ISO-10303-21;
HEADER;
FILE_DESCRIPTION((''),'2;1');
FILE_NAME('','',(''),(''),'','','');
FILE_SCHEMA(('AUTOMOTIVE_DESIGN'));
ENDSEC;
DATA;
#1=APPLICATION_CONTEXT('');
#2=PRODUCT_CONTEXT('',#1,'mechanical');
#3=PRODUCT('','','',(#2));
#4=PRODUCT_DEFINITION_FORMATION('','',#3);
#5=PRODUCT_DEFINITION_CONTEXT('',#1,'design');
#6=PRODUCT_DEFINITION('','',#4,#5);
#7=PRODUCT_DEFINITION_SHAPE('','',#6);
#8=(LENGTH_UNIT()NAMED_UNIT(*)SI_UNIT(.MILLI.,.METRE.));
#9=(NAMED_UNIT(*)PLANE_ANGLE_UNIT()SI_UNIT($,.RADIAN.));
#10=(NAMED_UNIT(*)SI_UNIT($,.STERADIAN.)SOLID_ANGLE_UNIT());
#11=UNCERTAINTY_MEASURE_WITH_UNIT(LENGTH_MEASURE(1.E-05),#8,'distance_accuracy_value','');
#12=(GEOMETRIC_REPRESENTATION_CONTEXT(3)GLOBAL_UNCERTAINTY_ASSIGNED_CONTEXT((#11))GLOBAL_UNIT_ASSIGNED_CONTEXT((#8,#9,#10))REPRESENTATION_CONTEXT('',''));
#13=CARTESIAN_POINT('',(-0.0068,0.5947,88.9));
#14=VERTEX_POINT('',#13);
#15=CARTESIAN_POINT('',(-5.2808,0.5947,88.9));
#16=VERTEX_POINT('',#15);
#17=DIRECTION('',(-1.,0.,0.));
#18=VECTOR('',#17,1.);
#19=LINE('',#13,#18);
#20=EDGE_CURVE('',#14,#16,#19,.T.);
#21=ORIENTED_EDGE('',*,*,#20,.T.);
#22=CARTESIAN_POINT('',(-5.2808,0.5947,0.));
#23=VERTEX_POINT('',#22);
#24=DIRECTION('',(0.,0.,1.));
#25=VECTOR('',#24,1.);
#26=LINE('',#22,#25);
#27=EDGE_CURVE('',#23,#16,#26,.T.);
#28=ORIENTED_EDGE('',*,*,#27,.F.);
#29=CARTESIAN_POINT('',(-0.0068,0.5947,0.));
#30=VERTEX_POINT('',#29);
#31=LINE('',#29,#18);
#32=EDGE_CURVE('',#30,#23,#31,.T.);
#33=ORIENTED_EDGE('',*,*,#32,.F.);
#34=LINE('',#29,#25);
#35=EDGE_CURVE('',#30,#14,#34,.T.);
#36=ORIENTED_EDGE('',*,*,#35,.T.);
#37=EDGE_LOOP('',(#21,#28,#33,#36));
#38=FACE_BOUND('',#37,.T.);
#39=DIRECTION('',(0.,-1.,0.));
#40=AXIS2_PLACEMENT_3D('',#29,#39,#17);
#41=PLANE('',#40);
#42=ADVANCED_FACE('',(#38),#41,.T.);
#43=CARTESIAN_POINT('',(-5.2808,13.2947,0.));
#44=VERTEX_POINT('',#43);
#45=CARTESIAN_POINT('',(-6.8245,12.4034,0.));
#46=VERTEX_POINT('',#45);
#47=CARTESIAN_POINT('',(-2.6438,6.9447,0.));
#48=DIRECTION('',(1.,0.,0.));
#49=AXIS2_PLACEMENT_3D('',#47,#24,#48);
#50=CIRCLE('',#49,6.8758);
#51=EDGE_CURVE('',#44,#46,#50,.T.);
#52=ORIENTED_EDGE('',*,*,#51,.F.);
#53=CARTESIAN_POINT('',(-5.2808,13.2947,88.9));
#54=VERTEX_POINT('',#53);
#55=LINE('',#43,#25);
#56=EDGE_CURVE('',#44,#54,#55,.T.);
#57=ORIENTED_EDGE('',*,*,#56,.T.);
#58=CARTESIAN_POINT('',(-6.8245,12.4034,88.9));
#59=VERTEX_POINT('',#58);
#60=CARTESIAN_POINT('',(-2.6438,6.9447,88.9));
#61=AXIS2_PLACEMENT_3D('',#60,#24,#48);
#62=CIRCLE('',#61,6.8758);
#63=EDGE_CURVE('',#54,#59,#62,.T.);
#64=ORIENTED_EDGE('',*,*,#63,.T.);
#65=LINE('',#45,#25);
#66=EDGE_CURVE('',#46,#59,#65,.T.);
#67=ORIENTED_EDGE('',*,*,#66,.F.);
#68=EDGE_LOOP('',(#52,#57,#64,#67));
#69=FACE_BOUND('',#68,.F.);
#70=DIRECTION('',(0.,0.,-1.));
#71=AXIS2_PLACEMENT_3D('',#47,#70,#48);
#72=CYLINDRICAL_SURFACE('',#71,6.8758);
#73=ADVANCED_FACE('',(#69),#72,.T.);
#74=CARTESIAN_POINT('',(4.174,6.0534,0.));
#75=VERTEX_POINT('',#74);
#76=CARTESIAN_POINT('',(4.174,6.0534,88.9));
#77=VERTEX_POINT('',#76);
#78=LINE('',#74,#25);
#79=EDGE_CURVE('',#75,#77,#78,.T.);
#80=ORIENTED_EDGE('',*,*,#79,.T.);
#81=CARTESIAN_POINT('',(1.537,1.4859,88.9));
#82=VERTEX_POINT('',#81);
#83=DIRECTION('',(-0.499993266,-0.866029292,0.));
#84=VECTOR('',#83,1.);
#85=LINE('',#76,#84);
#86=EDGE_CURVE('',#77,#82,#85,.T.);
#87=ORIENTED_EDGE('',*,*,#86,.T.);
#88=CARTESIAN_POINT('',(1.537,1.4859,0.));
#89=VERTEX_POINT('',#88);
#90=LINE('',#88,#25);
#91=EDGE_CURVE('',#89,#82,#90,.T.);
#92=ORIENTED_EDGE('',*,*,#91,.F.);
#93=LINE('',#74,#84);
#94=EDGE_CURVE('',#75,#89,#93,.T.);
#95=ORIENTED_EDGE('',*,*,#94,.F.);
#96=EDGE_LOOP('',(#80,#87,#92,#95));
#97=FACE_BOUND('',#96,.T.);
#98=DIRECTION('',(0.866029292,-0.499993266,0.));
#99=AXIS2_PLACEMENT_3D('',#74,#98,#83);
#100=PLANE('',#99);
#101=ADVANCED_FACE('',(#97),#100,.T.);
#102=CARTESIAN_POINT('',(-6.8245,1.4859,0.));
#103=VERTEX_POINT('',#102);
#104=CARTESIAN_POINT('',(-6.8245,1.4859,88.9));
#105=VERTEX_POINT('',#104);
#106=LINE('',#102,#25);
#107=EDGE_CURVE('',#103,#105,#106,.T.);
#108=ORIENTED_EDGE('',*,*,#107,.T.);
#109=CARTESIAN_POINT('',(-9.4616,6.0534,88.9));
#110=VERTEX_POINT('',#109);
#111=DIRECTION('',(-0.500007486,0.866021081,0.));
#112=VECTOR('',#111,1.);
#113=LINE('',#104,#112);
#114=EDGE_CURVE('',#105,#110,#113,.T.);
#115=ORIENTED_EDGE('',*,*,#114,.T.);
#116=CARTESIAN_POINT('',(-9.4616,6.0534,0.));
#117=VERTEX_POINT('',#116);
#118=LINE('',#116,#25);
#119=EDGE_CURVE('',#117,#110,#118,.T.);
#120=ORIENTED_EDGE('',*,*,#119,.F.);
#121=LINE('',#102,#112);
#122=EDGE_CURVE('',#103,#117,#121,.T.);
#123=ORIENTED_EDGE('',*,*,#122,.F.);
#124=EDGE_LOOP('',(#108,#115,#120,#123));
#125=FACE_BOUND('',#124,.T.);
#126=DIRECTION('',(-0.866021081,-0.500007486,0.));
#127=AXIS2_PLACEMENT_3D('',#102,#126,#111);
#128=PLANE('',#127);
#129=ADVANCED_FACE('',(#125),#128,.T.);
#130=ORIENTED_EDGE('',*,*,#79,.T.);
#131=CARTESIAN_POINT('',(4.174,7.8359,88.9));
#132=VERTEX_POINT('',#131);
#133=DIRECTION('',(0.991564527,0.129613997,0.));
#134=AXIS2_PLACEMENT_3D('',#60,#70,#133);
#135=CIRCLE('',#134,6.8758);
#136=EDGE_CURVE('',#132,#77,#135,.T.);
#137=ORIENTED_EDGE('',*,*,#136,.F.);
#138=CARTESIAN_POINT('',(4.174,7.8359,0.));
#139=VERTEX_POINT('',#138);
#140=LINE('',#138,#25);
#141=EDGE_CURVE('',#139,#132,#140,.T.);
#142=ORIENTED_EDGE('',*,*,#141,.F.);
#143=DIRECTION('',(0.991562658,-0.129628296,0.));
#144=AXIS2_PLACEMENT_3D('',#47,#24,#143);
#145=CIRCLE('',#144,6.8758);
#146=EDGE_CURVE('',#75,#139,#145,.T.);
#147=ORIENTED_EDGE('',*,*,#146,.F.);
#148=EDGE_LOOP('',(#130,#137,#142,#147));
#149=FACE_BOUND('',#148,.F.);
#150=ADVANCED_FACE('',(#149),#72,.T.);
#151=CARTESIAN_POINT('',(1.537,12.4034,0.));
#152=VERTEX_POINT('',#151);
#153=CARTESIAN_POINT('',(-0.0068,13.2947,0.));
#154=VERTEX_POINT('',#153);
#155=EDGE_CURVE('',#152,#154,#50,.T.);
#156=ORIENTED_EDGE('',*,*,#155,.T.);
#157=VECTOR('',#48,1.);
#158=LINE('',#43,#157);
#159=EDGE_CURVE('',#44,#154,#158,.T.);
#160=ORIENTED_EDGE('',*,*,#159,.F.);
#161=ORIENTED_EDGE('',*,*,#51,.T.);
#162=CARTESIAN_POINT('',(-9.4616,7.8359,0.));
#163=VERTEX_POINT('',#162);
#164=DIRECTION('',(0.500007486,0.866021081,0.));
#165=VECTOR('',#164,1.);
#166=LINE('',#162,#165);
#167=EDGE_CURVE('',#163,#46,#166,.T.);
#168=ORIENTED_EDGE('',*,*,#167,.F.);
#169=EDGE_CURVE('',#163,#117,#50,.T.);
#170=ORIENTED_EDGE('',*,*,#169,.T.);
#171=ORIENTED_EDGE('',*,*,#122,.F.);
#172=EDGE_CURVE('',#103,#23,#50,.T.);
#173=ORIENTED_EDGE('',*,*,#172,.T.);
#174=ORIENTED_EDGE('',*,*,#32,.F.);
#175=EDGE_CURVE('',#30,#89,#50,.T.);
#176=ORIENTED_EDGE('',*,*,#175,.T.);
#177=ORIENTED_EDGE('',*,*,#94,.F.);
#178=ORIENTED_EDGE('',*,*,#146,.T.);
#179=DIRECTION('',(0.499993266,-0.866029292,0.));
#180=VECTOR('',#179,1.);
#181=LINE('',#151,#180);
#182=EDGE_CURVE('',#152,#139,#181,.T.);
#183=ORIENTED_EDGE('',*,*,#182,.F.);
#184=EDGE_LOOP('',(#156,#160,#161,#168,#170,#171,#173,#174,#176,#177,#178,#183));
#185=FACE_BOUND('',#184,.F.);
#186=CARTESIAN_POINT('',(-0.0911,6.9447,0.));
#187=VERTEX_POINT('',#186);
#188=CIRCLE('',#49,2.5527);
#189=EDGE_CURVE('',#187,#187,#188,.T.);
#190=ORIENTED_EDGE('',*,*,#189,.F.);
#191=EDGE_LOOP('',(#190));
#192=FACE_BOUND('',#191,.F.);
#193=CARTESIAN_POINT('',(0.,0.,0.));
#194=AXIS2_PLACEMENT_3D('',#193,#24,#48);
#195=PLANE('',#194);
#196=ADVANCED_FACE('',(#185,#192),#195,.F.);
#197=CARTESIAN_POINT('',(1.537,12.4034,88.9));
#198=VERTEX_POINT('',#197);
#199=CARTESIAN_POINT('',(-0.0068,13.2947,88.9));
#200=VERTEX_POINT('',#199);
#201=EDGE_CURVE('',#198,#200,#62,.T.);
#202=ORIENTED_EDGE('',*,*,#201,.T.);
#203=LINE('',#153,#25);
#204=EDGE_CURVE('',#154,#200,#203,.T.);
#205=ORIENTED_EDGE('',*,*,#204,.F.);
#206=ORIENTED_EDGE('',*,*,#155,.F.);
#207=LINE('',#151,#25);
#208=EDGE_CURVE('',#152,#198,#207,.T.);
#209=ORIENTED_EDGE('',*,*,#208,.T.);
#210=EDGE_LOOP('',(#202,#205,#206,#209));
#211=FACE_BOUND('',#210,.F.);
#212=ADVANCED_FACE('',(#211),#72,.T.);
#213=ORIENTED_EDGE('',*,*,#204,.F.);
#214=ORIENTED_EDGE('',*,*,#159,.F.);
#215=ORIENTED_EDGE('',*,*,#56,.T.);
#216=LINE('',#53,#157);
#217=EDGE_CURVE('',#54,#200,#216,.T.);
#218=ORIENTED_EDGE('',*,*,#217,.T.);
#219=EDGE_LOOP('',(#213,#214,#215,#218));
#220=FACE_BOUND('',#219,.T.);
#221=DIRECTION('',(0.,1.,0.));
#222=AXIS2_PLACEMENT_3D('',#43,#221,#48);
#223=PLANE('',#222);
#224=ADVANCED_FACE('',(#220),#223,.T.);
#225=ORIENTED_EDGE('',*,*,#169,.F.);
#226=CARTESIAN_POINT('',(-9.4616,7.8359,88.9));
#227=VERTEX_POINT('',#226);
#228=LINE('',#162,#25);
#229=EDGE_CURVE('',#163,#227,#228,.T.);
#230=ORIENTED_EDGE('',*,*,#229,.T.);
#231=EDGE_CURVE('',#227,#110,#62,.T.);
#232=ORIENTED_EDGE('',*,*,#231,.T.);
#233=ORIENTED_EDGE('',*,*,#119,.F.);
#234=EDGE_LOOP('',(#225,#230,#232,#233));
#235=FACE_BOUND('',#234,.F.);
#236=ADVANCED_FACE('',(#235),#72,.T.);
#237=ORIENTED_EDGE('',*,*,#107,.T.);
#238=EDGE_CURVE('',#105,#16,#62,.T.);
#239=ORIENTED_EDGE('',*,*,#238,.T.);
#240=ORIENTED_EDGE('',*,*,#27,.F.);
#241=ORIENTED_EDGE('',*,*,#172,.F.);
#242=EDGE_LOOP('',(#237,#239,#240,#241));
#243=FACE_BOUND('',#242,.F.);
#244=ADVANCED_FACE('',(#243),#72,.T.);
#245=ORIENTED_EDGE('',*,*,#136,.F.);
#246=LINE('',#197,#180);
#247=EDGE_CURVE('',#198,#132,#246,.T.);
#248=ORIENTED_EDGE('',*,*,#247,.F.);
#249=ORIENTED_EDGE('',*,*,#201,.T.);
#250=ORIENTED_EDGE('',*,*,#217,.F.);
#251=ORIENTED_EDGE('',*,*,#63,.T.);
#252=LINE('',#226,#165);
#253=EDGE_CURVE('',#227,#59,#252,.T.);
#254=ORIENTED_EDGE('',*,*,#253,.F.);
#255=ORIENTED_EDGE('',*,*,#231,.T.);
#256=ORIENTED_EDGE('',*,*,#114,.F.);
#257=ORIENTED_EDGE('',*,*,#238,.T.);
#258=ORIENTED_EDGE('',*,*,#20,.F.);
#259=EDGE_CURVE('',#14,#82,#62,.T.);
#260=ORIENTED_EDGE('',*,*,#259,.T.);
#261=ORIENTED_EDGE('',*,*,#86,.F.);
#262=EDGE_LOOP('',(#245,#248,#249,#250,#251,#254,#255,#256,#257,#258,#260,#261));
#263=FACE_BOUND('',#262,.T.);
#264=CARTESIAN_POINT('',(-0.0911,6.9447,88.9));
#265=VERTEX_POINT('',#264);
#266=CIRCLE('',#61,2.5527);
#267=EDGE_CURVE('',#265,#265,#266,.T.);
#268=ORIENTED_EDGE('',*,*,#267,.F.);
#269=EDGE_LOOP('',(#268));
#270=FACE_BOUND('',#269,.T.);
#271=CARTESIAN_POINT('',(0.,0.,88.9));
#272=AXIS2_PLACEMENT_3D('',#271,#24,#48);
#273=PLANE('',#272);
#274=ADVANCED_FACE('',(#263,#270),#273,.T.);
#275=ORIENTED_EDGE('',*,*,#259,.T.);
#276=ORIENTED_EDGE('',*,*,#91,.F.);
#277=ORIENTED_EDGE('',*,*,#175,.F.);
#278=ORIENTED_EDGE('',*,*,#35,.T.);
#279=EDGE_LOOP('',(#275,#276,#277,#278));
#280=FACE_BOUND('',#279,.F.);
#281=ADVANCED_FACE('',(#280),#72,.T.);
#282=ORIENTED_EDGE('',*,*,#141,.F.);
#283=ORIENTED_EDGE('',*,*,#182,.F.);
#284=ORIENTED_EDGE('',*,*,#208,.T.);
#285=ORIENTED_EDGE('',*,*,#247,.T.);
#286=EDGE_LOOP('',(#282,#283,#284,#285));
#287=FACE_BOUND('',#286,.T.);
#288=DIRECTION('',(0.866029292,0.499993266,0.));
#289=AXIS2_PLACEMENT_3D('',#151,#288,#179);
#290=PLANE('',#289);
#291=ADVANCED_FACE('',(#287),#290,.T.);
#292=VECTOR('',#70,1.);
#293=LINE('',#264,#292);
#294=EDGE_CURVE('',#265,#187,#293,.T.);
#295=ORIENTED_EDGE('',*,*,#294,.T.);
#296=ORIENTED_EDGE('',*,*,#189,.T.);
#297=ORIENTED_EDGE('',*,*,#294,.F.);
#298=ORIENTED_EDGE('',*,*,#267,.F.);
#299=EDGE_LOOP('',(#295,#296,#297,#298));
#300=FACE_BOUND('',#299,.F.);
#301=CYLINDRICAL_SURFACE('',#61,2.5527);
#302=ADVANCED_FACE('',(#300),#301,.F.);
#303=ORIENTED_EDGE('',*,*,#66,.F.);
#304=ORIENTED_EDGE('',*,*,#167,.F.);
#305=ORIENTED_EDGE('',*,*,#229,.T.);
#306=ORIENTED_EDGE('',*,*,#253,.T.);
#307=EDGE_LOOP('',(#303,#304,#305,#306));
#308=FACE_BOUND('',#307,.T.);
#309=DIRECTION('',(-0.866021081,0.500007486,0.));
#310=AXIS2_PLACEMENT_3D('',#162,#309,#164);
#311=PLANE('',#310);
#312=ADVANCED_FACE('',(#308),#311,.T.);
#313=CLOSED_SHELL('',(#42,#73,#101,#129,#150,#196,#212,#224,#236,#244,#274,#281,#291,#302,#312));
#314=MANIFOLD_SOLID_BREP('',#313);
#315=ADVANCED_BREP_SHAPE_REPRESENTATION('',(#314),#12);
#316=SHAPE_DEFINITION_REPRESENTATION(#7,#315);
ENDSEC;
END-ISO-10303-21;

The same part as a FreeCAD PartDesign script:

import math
import FreeCAD as App
import Part
import Sketcher

V = App.Vector
Q = App.Units.Quantity

doc = App.newDocument("Part")
body = doc.addObject("PartDesign::Body", "Body")

sketch1 = body.newObject("Sketcher::SketchObject", "Sketch")
sketch1.AttachmentSupport = (doc.getObject("XY_Plane"), [""])
sketch1.MapMode = "FlatFace"
sketch1.addGeometry([
    Part.ArcOfCircle(Part.Circle(V(-2.6, 6.9, 0), V(0, 0, 1), 6.9), math.radians(-7.45), math.radians(7.45)),
    Part.LineSegment(V(4.2, 7.8, 0), V(1.5, 12.4, 0)),
    Part.ArcOfCircle(Part.Circle(V(-2.6, 6.9, 0), V(0, 0, 1), 6.9), math.radians(52.55), math.radians(67.45)),
    Part.LineSegment(V(0, 13.3, 0), V(-5.3, 13.3, 0)),
    Part.ArcOfCircle(Part.Circle(V(-2.6, 6.9, 0), V(0, 0, 1), 6.9), math.radians(112.55), math.radians(127.45)),
    Part.LineSegment(V(-6.8, 12.4, 0), V(-9.5, 7.8, 0)),
    Part.ArcOfCircle(Part.Circle(V(-2.6, 6.9, 0), V(0, 0, 1), 6.9), math.radians(172.55), math.radians(187.45)),
    Part.LineSegment(V(-9.5, 6.1, 0), V(-6.8, 1.5, 0)),
    Part.ArcOfCircle(Part.Circle(V(-2.6, 6.9, 0), V(0, 0, 1), 6.9), math.radians(-127.45), math.radians(-112.55)),
    Part.LineSegment(V(-5.3, 0.6, 0), V(0, 0.6, 0)),
    Part.ArcOfCircle(Part.Circle(V(-2.6, 6.9, 0), V(0, 0, 1), 6.9), math.radians(-67.45), math.radians(-52.55)),
    Part.LineSegment(V(1.5, 1.5, 0), V(4.2, 6.1, 0)),
], False)
sketch1.addConstraint([
    Sketcher.Constraint("Coincident", 0, 2, 1, 1),
    Sketcher.Constraint("Coincident", 1, 2, 2, 1),
    Sketcher.Constraint("Coincident", 2, 2, 3, 1),
    Sketcher.Constraint("Coincident", 3, 2, 4, 1),
    Sketcher.Constraint("Coincident", 4, 2, 5, 1),
    Sketcher.Constraint("Coincident", 5, 2, 6, 1),
    Sketcher.Constraint("Coincident", 6, 2, 7, 1),
    Sketcher.Constraint("Coincident", 7, 2, 8, 1),
    Sketcher.Constraint("Coincident", 8, 2, 9, 1),
    Sketcher.Constraint("Coincident", 9, 2, 10, 1),
    Sketcher.Constraint("Coincident", 10, 2, 11, 1),
    Sketcher.Constraint("Coincident", 11, 2, 0, 1),
    Sketcher.Constraint("Horizontal", 3),
    Sketcher.Constraint("Horizontal", 9),
    Sketcher.Constraint("Coincident", 2, 3, 0, 3),
    Sketcher.Constraint("Coincident", 4, 3, 0, 3),
    Sketcher.Constraint("Coincident", 6, 3, 0, 3),
    Sketcher.Constraint("Coincident", 8, 3, 0, 3),
    Sketcher.Constraint("Coincident", 10, 3, 0, 3),
    Sketcher.Constraint("Equal", 0, 2),
    Sketcher.Constraint("Equal", 2, 4),
    Sketcher.Constraint("Equal", 4, 6),
    Sketcher.Constraint("Equal", 6, 8),
    Sketcher.Constraint("Equal", 8, 10),
    Sketcher.Constraint("Parallel", 1, 7),
    Sketcher.Constraint("Parallel", 5, 11),
    Sketcher.Constraint("Horizontal", 1, 2, 4, 2),
    Sketcher.Constraint("Horizontal", 0, 2, 5, 2),
    Sketcher.Constraint("Horizontal", 7, 2, 10, 2),
    Sketcher.Constraint("Vertical", 5, 2, 6, 2),
    Sketcher.Constraint("Vertical", 3, 2, 8, 2),
    Sketcher.Constraint("Radius", 0, Q("0.2707 in")),
    Sketcher.Constraint("Angle", 1, Q("119.9996 deg")),
    Sketcher.Constraint("DistanceY", 0, 3, 2, 2, Q("0.25 in")),
    Sketcher.Constraint("DistanceY", 10, 2, 0, 2, Q("0.25 in")),
    Sketcher.Constraint("DistanceY", -1, 1, 0, 2, Q("0.3085 in")),
    Sketcher.Constraint("DistanceX", -1, 1, 1, 2, Q("0.0605 in")),
])
pad1 = body.newObject("PartDesign::Pad", "Pad")
pad1.Profile = sketch1
pad1.Length = Q("3.5 in")

sketch2 = body.newObject("Sketcher::SketchObject", "Sketch001")
sketch2.AttachmentSupport = (doc.getObject("XY_Plane"), [""])
sketch2.MapMode = "FlatFace"
sketch2.AttachmentOffset = App.Placement(V(0, 0, 3.5 * 25.4), App.Rotation())
sketch2.addGeometry(Part.Circle(V(-2.6, 6.9, 0), V(0, 0, 1), 2.6), False)
sketch2.addConstraint([
    Sketcher.Constraint("Diameter", 0, Q("0.201 in")),
    Sketcher.Constraint("DistanceX", 0, 3, -1, 1, Q("2.6438 mm")),
    Sketcher.Constraint("DistanceY", -1, 1, 0, 3, Q("6.9447 mm")),
])
pocket1 = body.newObject("PartDesign::Pocket", "Pocket")
pocket1.Profile = sketch2
pocket1.Length = Q("3.5 in")

doc.recompute()
